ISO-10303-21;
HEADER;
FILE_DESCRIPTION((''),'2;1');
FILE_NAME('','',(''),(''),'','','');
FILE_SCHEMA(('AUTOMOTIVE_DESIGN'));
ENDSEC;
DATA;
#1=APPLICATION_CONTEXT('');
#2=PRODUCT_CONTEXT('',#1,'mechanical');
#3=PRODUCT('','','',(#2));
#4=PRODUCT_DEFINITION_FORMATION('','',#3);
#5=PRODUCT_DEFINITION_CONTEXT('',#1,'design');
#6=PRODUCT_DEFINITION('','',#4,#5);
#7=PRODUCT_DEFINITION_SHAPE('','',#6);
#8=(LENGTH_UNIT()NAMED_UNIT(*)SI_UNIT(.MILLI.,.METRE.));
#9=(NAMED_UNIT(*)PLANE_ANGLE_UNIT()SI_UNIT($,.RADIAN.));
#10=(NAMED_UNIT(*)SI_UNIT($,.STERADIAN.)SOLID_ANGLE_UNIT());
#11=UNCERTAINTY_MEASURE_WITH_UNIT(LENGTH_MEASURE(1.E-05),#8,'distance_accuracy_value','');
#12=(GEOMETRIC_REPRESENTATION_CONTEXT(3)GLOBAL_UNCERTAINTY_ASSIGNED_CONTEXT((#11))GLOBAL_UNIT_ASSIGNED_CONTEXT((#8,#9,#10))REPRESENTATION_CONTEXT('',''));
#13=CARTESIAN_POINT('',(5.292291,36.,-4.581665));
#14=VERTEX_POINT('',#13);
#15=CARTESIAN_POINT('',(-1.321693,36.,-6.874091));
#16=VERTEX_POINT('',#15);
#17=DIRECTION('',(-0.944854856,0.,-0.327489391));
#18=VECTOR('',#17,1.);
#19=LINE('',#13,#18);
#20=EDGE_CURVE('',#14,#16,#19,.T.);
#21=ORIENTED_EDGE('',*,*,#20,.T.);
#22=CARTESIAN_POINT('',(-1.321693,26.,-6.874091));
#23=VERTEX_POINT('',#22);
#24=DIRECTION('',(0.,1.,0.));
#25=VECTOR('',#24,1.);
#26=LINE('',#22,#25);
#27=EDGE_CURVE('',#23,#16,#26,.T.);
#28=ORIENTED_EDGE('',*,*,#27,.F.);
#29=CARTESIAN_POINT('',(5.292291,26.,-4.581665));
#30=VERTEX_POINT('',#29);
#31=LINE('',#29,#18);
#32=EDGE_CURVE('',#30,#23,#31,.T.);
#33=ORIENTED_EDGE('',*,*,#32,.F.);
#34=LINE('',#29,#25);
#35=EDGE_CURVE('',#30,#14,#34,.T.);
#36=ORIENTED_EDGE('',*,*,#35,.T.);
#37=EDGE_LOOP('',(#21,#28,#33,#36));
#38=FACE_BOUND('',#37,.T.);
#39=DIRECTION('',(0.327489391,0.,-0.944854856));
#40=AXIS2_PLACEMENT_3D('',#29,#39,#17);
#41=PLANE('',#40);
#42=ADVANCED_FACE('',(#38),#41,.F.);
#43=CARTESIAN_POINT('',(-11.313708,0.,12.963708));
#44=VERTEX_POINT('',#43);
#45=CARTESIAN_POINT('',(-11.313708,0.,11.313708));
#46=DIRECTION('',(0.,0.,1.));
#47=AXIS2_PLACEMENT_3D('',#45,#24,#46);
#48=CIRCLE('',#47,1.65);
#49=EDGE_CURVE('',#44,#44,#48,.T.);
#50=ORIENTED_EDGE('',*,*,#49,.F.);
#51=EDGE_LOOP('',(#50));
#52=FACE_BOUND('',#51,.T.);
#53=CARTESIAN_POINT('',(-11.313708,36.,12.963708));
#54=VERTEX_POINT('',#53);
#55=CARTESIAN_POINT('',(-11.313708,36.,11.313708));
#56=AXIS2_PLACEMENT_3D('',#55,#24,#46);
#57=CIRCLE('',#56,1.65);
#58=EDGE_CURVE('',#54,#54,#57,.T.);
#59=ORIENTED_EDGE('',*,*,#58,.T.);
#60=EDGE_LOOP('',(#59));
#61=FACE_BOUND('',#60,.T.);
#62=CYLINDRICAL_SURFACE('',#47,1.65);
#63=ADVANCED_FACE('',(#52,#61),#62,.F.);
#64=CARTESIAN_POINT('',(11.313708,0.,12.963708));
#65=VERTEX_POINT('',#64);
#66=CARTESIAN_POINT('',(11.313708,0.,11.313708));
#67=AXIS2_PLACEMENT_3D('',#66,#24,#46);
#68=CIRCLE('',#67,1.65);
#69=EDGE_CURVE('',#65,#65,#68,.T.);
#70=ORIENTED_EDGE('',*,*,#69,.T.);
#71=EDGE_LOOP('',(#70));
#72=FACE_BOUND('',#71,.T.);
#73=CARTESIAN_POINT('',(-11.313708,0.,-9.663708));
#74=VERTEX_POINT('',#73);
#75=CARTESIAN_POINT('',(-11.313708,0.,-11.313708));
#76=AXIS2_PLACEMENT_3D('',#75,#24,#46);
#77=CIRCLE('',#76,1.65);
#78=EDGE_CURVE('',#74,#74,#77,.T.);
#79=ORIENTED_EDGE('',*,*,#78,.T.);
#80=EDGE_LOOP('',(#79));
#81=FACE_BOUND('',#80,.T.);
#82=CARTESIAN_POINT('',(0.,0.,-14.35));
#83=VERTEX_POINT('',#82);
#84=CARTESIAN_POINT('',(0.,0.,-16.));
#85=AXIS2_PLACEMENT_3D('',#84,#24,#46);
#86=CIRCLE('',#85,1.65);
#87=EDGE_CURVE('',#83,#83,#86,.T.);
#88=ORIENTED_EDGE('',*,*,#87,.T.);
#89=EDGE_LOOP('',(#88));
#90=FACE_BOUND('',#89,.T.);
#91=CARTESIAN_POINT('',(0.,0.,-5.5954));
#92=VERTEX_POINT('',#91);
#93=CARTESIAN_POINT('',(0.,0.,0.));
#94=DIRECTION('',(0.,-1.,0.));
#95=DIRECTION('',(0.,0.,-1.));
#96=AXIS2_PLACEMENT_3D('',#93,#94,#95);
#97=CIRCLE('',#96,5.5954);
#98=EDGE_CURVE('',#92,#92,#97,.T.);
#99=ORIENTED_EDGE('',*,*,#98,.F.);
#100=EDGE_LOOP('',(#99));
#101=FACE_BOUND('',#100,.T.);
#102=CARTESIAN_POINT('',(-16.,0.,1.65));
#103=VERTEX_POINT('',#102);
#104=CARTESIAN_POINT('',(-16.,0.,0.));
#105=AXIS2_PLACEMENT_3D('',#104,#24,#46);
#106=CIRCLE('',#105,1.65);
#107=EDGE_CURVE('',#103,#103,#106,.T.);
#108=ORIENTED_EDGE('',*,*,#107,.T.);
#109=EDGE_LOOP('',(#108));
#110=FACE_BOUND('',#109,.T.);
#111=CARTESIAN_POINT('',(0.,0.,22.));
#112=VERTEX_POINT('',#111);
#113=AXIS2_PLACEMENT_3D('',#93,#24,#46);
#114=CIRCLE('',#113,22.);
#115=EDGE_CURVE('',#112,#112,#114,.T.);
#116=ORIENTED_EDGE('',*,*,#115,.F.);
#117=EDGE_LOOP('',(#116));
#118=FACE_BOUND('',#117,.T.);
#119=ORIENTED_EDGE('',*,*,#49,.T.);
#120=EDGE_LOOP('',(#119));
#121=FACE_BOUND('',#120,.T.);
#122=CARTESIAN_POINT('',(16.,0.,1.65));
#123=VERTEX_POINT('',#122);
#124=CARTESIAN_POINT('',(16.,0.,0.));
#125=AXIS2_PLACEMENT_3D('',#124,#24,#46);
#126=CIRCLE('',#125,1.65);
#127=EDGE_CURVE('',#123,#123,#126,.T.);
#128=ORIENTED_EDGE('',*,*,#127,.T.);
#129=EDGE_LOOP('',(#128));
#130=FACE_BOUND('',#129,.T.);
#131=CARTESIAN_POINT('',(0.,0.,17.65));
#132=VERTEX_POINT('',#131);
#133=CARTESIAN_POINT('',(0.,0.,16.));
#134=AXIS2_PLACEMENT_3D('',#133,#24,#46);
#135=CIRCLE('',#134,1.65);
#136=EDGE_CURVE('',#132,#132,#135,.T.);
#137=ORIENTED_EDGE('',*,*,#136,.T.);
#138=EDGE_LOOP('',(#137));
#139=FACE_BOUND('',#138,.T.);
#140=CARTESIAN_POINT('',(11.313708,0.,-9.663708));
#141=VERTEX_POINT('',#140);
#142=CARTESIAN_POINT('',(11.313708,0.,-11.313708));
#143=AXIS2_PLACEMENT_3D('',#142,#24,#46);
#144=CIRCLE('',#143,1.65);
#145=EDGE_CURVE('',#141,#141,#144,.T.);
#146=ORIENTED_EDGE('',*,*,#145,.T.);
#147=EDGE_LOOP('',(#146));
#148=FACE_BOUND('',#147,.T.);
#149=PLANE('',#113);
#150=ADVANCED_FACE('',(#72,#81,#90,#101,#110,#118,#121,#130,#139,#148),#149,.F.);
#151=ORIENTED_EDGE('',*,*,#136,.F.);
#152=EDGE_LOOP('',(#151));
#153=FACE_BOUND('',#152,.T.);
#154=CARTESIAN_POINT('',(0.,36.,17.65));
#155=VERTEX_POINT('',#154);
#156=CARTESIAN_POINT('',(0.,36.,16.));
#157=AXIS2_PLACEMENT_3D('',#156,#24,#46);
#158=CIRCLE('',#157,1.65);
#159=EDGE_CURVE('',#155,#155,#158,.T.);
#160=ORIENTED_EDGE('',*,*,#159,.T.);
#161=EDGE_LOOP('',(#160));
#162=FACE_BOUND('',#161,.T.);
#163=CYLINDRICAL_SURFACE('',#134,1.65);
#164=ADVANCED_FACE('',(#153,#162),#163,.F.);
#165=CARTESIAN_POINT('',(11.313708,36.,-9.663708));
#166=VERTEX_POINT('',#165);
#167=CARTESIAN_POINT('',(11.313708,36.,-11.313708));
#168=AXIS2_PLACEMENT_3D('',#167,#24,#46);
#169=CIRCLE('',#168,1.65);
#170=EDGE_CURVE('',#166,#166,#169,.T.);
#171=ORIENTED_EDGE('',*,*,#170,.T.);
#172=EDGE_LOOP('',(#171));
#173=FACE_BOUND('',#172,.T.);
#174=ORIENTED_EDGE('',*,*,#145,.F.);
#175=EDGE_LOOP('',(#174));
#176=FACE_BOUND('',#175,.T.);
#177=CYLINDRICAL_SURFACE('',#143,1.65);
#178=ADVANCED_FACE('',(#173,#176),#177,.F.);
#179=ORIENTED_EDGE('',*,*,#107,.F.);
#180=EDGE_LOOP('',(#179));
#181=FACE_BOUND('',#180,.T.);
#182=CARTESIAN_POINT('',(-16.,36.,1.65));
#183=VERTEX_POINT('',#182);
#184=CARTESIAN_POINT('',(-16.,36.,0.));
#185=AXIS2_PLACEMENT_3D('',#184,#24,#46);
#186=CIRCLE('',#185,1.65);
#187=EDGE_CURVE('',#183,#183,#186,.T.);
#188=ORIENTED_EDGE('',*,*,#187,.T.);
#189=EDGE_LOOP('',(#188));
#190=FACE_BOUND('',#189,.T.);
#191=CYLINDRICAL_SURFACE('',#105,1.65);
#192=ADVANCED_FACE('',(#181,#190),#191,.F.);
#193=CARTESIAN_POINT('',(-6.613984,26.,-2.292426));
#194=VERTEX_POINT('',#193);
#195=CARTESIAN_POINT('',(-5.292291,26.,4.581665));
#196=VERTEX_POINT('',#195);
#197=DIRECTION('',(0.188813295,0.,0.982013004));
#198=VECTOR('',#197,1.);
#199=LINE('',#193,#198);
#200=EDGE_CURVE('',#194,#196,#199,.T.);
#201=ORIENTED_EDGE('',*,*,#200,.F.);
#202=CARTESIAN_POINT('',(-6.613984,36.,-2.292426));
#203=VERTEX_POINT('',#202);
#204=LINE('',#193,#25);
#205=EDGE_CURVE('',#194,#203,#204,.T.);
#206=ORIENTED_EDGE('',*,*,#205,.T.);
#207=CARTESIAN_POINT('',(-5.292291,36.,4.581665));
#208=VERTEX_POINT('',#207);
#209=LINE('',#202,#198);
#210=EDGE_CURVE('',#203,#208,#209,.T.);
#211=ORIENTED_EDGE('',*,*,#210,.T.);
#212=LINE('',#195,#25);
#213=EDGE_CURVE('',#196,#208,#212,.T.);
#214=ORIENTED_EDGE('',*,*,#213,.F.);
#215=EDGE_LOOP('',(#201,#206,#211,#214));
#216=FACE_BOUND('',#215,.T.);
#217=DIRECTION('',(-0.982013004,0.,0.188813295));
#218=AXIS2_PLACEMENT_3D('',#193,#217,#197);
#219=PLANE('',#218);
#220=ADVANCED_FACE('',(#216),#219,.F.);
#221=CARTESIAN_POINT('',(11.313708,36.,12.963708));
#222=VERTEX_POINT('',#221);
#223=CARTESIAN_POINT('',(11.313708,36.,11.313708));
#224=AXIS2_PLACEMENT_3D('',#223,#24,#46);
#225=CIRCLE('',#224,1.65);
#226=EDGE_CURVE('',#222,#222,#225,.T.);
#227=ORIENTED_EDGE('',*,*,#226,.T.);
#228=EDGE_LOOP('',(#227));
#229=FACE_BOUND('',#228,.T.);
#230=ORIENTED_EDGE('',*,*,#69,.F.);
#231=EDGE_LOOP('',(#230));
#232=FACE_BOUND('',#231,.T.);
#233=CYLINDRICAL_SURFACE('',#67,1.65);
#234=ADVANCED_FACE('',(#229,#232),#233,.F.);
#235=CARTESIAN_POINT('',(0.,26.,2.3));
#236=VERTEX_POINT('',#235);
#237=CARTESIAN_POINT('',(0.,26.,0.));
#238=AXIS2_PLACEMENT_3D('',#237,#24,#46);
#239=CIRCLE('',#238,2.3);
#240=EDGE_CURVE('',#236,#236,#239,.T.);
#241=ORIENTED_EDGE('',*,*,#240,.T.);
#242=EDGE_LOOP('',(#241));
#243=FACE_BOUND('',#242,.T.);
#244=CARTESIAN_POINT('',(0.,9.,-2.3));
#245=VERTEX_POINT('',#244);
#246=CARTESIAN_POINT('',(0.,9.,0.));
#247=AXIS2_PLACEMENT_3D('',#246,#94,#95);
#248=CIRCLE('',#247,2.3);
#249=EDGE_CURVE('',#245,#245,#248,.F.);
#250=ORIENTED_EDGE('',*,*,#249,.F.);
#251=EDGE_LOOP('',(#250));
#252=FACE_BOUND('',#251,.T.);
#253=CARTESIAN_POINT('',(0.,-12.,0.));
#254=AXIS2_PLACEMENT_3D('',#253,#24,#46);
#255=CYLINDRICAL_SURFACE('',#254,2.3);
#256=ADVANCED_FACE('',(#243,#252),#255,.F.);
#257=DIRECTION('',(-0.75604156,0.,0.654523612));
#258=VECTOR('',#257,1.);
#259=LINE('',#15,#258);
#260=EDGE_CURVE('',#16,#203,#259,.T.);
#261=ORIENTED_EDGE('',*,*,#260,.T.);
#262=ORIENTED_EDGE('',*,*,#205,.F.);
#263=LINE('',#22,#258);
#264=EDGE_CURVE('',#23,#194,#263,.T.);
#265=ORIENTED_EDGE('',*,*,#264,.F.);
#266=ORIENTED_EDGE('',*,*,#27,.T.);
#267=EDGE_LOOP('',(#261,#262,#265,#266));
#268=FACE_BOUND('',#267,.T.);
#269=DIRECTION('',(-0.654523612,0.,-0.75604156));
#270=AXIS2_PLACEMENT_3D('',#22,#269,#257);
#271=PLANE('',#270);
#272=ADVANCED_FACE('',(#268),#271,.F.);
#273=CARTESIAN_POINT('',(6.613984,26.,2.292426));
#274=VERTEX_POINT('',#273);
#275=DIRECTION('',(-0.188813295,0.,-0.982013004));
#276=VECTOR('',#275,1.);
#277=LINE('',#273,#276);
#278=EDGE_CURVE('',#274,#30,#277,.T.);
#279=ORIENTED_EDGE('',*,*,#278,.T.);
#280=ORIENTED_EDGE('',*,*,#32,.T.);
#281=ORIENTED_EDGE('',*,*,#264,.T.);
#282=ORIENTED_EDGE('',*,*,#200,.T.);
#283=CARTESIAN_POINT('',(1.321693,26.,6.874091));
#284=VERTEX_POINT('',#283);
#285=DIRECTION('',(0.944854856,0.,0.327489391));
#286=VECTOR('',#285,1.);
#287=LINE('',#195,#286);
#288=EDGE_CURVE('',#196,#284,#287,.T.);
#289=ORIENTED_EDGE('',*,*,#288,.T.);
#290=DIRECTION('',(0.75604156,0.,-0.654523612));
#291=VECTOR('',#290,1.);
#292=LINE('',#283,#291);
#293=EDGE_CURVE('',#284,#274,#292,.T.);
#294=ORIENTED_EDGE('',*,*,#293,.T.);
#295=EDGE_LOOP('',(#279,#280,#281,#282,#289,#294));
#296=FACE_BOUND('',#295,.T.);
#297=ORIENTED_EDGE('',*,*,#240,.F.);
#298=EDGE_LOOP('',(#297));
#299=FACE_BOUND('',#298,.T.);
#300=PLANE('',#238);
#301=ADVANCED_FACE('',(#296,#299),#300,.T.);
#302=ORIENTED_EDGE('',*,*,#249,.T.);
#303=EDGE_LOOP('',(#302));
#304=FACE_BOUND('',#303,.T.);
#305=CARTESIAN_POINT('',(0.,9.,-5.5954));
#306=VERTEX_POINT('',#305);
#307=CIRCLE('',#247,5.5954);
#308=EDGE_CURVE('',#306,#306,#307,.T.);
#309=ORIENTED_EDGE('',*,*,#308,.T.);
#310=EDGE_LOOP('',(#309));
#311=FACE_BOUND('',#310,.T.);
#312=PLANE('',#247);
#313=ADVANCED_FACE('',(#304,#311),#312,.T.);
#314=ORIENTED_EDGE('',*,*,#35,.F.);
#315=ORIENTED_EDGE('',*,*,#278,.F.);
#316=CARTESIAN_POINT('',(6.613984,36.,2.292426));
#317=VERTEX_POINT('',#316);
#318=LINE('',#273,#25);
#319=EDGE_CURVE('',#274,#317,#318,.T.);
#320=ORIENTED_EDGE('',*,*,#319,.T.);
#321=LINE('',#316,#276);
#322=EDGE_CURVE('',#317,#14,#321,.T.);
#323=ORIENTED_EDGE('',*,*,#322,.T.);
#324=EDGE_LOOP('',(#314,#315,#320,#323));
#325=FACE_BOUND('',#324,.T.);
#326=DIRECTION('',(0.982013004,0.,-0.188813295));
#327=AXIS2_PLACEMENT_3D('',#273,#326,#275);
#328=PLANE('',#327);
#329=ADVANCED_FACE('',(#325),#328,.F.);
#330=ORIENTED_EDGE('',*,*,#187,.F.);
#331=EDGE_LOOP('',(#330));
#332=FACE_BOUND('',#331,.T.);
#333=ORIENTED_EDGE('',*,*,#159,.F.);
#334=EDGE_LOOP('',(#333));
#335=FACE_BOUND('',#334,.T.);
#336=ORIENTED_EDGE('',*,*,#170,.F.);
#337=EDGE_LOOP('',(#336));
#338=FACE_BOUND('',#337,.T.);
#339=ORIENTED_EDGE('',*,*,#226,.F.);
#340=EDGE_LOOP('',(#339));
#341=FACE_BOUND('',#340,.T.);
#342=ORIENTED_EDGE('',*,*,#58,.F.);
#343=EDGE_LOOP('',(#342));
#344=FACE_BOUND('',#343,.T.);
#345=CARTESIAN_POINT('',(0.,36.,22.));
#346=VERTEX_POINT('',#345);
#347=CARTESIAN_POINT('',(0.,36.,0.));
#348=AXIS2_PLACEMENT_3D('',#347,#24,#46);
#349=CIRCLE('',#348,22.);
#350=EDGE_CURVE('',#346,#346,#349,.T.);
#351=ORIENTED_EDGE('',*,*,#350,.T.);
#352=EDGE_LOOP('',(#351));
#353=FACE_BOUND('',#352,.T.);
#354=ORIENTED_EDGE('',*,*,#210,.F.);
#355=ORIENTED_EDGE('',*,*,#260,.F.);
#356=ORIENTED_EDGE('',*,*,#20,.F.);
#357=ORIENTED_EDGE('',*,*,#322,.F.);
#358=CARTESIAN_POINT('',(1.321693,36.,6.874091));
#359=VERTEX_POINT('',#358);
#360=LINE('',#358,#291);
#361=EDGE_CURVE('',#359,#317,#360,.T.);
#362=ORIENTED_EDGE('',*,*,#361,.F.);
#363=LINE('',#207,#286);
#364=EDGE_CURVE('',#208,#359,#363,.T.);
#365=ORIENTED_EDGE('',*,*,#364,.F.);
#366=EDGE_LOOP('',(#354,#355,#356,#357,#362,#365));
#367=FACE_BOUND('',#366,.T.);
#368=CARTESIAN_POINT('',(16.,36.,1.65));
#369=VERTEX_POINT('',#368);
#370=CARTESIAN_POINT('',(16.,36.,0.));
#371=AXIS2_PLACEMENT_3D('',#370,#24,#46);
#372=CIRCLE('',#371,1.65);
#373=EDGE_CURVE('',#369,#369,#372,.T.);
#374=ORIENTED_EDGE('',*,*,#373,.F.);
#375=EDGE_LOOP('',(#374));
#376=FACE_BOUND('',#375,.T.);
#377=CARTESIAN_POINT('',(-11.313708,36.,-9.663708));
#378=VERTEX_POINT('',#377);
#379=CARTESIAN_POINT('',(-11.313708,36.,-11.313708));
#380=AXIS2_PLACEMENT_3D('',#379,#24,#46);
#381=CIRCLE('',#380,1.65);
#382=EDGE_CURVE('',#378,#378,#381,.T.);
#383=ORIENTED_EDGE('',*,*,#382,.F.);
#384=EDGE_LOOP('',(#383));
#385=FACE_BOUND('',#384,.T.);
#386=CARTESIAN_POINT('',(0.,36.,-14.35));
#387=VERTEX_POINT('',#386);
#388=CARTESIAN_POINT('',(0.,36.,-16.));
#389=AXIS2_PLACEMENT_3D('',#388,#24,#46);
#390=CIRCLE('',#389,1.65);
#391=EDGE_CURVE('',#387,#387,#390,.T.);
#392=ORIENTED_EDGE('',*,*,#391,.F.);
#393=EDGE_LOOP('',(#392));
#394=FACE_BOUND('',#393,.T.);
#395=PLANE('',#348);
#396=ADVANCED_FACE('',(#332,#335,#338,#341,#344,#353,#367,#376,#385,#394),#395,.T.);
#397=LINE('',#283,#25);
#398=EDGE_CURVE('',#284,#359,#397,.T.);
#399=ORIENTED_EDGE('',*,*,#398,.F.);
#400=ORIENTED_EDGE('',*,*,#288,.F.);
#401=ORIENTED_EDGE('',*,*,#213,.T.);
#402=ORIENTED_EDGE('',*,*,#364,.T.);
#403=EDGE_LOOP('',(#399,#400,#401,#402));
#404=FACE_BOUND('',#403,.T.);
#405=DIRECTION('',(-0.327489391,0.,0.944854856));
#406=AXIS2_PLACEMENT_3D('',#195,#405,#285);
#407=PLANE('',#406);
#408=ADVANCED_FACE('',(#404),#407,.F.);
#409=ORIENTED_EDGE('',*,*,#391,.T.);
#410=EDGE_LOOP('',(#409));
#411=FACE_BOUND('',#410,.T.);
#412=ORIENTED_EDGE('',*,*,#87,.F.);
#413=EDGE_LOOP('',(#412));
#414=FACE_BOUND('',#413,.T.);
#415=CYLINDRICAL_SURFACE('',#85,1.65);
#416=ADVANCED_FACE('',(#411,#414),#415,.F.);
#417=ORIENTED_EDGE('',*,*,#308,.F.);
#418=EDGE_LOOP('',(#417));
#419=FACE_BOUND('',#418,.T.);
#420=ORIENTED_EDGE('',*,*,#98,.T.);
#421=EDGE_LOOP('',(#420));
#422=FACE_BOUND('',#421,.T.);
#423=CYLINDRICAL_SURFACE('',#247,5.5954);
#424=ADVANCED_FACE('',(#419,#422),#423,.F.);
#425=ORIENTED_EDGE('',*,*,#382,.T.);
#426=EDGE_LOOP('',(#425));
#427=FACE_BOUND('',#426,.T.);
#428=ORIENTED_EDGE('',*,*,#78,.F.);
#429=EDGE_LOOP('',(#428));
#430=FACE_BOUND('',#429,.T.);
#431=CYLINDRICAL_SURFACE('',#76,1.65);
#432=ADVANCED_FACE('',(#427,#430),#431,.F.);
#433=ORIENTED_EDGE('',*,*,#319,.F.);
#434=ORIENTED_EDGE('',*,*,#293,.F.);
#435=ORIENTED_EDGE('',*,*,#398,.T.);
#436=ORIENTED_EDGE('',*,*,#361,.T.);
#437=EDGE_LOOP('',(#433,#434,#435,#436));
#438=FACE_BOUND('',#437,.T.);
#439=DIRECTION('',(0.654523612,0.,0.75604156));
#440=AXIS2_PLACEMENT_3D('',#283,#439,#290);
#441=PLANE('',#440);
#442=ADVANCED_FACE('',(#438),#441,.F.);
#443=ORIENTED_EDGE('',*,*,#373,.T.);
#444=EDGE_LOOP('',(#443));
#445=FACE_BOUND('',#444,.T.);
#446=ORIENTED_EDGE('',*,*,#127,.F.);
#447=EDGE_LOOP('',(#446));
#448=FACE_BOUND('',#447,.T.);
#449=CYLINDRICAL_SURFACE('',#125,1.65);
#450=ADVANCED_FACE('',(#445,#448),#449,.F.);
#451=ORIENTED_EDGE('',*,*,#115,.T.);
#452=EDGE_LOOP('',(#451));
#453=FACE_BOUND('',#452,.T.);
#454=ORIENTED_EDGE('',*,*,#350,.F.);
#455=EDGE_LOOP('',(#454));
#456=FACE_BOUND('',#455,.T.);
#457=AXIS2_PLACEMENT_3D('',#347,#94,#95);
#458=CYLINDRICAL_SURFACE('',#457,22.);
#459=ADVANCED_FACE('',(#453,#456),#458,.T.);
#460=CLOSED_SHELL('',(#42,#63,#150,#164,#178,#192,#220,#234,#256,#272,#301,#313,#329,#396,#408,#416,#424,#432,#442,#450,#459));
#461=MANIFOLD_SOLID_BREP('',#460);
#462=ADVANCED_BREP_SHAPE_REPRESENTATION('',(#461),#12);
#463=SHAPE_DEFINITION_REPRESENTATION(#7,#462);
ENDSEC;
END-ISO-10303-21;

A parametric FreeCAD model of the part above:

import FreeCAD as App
import Part
import Sketcher
from FreeCAD import Vector


def add_polygon(sketch, points):
    """Adds a closed chain of lines whose ends are joined by coincident constraints."""
    first, n = sketch.GeometryCount, len(points)
    for a, b in zip(points, points[1:] + points[:1]):
        sketch.addGeometry(Part.LineSegment(App.Vector(*a, 0), App.Vector(*b, 0)), False)
    for i in range(n):
        sketch.addConstraint(Sketcher.Constraint("Coincident", first + i, 2, first + (i + 1) % n, 1))

doc = App.newDocument("Part")
body = doc.addObject("PartDesign::Body", "Body")

# Sketch on XZ plane
sketch1 = body.newObject("Sketcher::SketchObject", "Sketch")
sketch1.AttachmentSupport = (doc.getObject("XZ_Plane"), [""])
sketch1.MapMode = "FlatFace"
sketch1.addGeometry(Part.Circle(Vector(0, 0, 0), Vector(0, 0, 1), 22), False)
sketch1.addConstraint(Sketcher.Constraint("Coincident", 0, 3, -1, 1))
sketch1.addConstraint(Sketcher.Constraint("Diameter", 0, 44.0))
pad1 = body.newObject("PartDesign::Pad", "Pad")
pad1.Profile = sketch1
pad1.Length = 36
pad1.Reversed = True

# Sketch on XZ plane
sketch2 = body.newObject("Sketcher::SketchObject", "Sketch001")
sketch2.AttachmentSupport = (doc.getObject("XZ_Plane"), [""])
sketch2.MapMode = "FlatFace"
sketch2.AttachmentOffset = App.Placement(Vector(0, 0, -36), App.Rotation())
sketch2.addGeometry(Part.Circle(Vector(-11.313708, -11.313708, 0), Vector(0, 0, 1), 1.65), False)
sketch2.addGeometry(Part.Circle(Vector(0, -16, 0), Vector(0, 0, 1), 1.65), False)
sketch2.addGeometry(Part.Circle(Vector(16, 0, 0), Vector(0, 0, 1), 1.65), False)
sketch2.addGeometry(Part.Circle(Vector(11.313708, -11.313708, 0), Vector(0, 0, 1), 1.65), False)
sketch2.addGeometry(Part.Circle(Vector(0, 16, 0), Vector(0, 0, 1), 1.65), False)
sketch2.addGeometry(Part.Circle(Vector(11.313708, 11.313708, 0), Vector(0, 0, 1), 1.65), False)
sketch2.addGeometry(Part.Circle(Vector(-16, 0, 0), Vector(0, 0, 1), 1.65), False)
sketch2.addGeometry(Part.Circle(Vector(-11.313708, 11.313708, 0), Vector(0, 0, 1), 1.65), False)
sketch2.addConstraint(Sketcher.Constraint("Equal", 0, 1))
sketch2.addConstraint(Sketcher.Constraint("Equal", 1, 2))
sketch2.addConstraint(Sketcher.Constraint("Equal", 2, 3))
sketch2.addConstraint(Sketcher.Constraint("Equal", 3, 4))
sketch2.addConstraint(Sketcher.Constraint("Equal", 4, 5))
sketch2.addConstraint(Sketcher.Constraint("Equal", 5, 6))
sketch2.addConstraint(Sketcher.Constraint("Equal", 6, 7))
sketch2.addConstraint(Sketcher.Constraint("Symmetric", 1, 3, 4, 3, -1, 1))
sketch2.addConstraint(Sketcher.Constraint("Symmetric", 0, 3, 5, 3, -1, 1))
sketch2.addConstraint(Sketcher.Constraint("Symmetric", 2, 3, 6, 3, -1, 1))
sketch2.addConstraint(Sketcher.Constraint("Symmetric", 3, 3, 7, 3, -1, 1))
sketch2.addConstraint(Sketcher.Constraint("Symmetric", 0, 3, 3, 3, -2))
sketch2.addConstraint(Sketcher.Constraint("PointOnObject", 1, 3, -2))
sketch2.addConstraint(Sketcher.Constraint("PointOnObject", 2, 3, -1))
sketch2.addConstraint(Sketcher.Constraint("Diameter", 0, 3.3))
sketch2.addConstraint(Sketcher.Constraint("DistanceY", 1, 3, -1, 1, 16.0))
sketch2.addConstraint(Sketcher.Constraint("DistanceX", -1, 1, 2, 3, 16.0))
sketch2.addConstraint(Sketcher.Constraint("DistanceX", 0, 3, -1, 1, 11.313708))
sketch2.addConstraint(Sketcher.Constraint("DistanceY", 0, 3, -1, 1, 11.313708))
pocket1 = body.newObject("PartDesign::Pocket", "Pocket")
pocket1.Profile = sketch2
pocket1.Length = 36
pocket1.Reversed = True

# Sketch on XZ plane
sketch3 = body.newObject("Sketcher::SketchObject", "Sketch002")
sketch3.AttachmentSupport = (doc.getObject("XZ_Plane"), [""])
sketch3.MapMode = "FlatFace"
sketch3.AttachmentOffset = App.Placement(Vector(0, 0, -36), App.Rotation())
add_polygon(sketch3, [(1.321693, 6.874091), (6.613984, 2.292426), (5.292291, -4.581665), (-1.321693, -6.874091), (-6.613984, -2.292426), (-5.292291, 4.581665)])  # lines 0-5
sketch3.addConstraint(Sketcher.Constraint("Symmetric", 0, 2, 3, 2, -1, 1))
sketch3.addConstraint(Sketcher.Constraint("Symmetric", 1, 2, 4, 2, -1, 1))
sketch3.addConstraint(Sketcher.Constraint("Symmetric", 2, 2, 5, 2, -1, 1))
sketch3.addConstraint(Sketcher.Constraint("Equal", 0, 1))
sketch3.addConstraint(Sketcher.Constraint("Equal", 1, 2))
sketch3.addConstraint(Sketcher.Constraint("Distance", 0, 7.0))
sketch3.addConstraint(Sketcher.Constraint("DistanceX", -1, 1, 1, 2, 5.292291))
sketch3.addConstraint(Sketcher.Constraint("DistanceY", 2, 2, -1, 1, 6.874091))
sketch3.addConstraint(Sketcher.Constraint("DistanceY", 1, 2, 0, 2, 6.874091))
pocket2 = body.newObject("PartDesign::Pocket", "Pocket001")
pocket2.Profile = sketch3
pocket2.Length = 10
pocket2.Reversed = True

# Sketch on XZ plane
sketch4 = body.newObject("Sketcher::SketchObject", "Sketch003")
sketch4.AttachmentSupport = (doc.getObject("XZ_Plane"), [""])
sketch4.MapMode = "FlatFace"
sketch4.AttachmentOffset = App.Placement(Vector(0, 0, -26), App.Rotation())
sketch4.addGeometry(Part.Circle(Vector(0, 0, 0), Vector(0, 0, 1), 2.3), False)
sketch4.addConstraint(Sketcher.Constraint("Coincident", 0, 3, -1, 1))
sketch4.addConstraint(Sketcher.Constraint("Diameter", 0, 4.6))
pocket3 = body.newObject("PartDesign::Pocket", "Pocket002")
pocket3.Profile = sketch4
pocket3.Length = 38
pocket3.Reversed = True

# Sketch on XZ plane
sketch5 = body.newObject("Sketcher::SketchObject", "Sketch004")
sketch5.AttachmentSupport = (doc.getObject("XZ_Plane"), [""])
sketch5.MapMode = "FlatFace"
sketch5.addGeometry(Part.Circle(Vector(0, 0, 0), Vector(0, 0, 1), 5.5954), False)
sketch5.addConstraint(Sketcher.Constraint("Coincident", 0, 3, -1, 1))
sketch5.addConstraint(Sketcher.Constraint("Diameter", 0, 11.190801))
pocket4 = body.newObject("PartDesign::Pocket", "Pocket003")
pocket4.Profile = sketch5
pocket4.Length = 9

doc.recompute()
